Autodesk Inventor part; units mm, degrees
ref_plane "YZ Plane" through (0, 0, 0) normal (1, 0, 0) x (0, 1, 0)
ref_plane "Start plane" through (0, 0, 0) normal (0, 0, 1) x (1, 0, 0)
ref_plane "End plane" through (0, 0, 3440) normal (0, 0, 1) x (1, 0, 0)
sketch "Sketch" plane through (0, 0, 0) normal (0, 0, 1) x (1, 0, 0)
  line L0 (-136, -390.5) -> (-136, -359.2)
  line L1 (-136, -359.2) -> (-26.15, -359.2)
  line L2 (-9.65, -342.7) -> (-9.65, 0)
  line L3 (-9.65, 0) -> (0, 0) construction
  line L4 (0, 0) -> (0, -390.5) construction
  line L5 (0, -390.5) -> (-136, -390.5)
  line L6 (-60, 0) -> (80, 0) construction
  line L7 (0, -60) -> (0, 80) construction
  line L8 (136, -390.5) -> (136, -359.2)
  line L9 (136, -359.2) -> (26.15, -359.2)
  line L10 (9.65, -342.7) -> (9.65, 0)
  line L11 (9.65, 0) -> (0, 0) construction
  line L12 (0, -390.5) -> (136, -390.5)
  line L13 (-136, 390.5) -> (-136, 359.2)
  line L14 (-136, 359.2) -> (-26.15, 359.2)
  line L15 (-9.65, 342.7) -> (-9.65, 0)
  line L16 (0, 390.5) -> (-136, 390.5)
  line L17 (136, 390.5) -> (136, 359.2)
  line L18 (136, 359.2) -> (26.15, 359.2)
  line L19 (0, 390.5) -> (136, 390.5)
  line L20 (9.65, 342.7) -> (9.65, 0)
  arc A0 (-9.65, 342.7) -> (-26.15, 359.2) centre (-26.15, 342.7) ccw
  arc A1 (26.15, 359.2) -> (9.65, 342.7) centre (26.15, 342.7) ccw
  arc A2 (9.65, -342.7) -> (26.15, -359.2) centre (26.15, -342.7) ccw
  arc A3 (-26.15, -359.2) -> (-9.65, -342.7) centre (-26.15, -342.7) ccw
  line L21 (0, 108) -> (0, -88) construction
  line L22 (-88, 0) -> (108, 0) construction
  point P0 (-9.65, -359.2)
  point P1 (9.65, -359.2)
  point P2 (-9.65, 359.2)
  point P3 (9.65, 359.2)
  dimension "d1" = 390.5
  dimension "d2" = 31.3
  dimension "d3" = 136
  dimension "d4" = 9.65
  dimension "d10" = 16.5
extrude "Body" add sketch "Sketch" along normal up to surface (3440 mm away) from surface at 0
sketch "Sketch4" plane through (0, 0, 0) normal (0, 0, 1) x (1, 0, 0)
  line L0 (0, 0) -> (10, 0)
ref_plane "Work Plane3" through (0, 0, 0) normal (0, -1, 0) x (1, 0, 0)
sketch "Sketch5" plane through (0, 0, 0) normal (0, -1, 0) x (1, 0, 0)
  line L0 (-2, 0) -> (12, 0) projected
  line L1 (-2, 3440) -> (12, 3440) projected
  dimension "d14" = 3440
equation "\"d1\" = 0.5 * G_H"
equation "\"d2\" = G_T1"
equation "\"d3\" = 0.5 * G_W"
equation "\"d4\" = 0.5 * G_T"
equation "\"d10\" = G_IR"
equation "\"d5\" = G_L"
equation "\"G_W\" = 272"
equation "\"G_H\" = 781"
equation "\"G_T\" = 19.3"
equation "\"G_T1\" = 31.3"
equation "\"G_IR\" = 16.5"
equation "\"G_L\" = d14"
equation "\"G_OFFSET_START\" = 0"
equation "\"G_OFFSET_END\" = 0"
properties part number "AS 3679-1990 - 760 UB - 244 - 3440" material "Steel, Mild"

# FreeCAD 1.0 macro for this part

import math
import FreeCAD as App
import Part
import Sketcher
from FreeCAD import Vector

doc = App.newDocument("Part")
body = doc.addObject("PartDesign::Body", "Body")

# Sketch on XY plane
sketch1 = body.newObject("Sketcher::SketchObject", "Sketch")
sketch1.AttachmentSupport = (doc.getObject("XY_Plane"), [""])
sketch1.MapMode = "FlatFace"
sketch1.addGeometry([
    Part.LineSegment(Vector(-136, -359, 0), Vector(-136, -390, 0)),  # 0
    Part.LineSegment(Vector(-136, -390, 0), Vector(136, -390, 0)),  # 1
    Part.LineSegment(Vector(136, -390, 0), Vector(136, -359, 0)),  # 2
    Part.LineSegment(Vector(136, -359, 0), Vector(26, -359, 0)),  # 3
    Part.ArcOfCircle(Part.Circle(Vector(26, -343, 0), Vector(0, 0, 1), 16), math.radians(180), math.radians(270)),  # 4
    Part.LineSegment(Vector(10, -343, 0), Vector(10, 343, 0)),  # 5
    Part.ArcOfCircle(Part.Circle(Vector(26, 343, 0), Vector(0, 0, 1), 16), math.radians(90), math.radians(180)),  # 6
    Part.LineSegment(Vector(26, 359, 0), Vector(136, 359, 0)),  # 7
    Part.LineSegment(Vector(136, 359, 0), Vector(136, 390, 0)),  # 8
    Part.LineSegment(Vector(136, 390, 0), Vector(-136, 390, 0)),  # 9
    Part.LineSegment(Vector(-136, 390, 0), Vector(-136, 359, 0)),  # 10
    Part.LineSegment(Vector(-136, 359, 0), Vector(-26, 359, 0)),  # 11
    Part.ArcOfCircle(Part.Circle(Vector(-26, 343, 0), Vector(0, 0, 1), 16), math.radians(0), math.radians(90)),  # 12
    Part.LineSegment(Vector(-10, 343, 0), Vector(-10, -343, 0)),  # 13
    Part.ArcOfCircle(Part.Circle(Vector(-26, -343, 0), Vector(0, 0, 1), 16), math.radians(-90), math.radians(0)),  # 14
    Part.LineSegment(Vector(-26, -359, 0), Vector(-136, -359, 0)),  # 15
], False)
sketch1.addConstraint([
    Sketcher.Constraint("Coincident", 0, 2, 1, 1),
    Sketcher.Constraint("Coincident", 1, 2, 2, 1),
    Sketcher.Constraint("Coincident", 2, 2, 3, 1),
    Sketcher.Constraint("Tangent", 3, 2, 4, 2),
    Sketcher.Constraint("Tangent", 4, 1, 5, 1),
    Sketcher.Constraint("Tangent", 5, 2, 6, 2),
    Sketcher.Constraint("Tangent", 6, 1, 7, 1),
    Sketcher.Constraint("Coincident", 7, 2, 8, 1),
    Sketcher.Constraint("Coincident", 8, 2, 9, 1),
    Sketcher.Constraint("Coincident", 9, 2, 10, 1),
    Sketcher.Constraint("Coincident", 10, 2, 11, 1),
    Sketcher.Constraint("Tangent", 11, 2, 12, 2),
    Sketcher.Constraint("Tangent", 12, 1, 13, 1),
    Sketcher.Constraint("Tangent", 13, 2, 14, 2),
    Sketcher.Constraint("Tangent", 14, 1, 15, 1),
    Sketcher.Constraint("Coincident", 15, 2, 0, 1),
    Sketcher.Constraint("Vertical", 0),
    Sketcher.Constraint("Horizontal", 1),
    Sketcher.Constraint("Vertical", 2),
    Sketcher.Constraint("Horizontal", 3),
    Sketcher.Constraint("Vertical", 5),
    Sketcher.Constraint("Horizontal", 7),
    Sketcher.Constraint("Vertical", 8),
    Sketcher.Constraint("Horizontal", 9),
    Sketcher.Constraint("Vertical", 10),
    Sketcher.Constraint("Horizontal", 11),
    Sketcher.Constraint("Vertical", 13),
    Sketcher.Constraint("Horizontal", 15),
    Sketcher.Constraint("Equal", 4, 6),
    Sketcher.Constraint("Equal", 6, 12),
    Sketcher.Constraint("Equal", 12, 14),
    Sketcher.Constraint("Symmetric", 4, 3, 12, 3, -1, 1),
    Sketcher.Constraint("Symmetric", 0, 2, 8, 2, -1, 1),
    Sketcher.Constraint("Symmetric", 7, 2, 10, 2, -2),
    Sketcher.Constraint("Symmetric", 2, 2, 15, 2, -2),
    Sketcher.Constraint("Radius", 4, 16.5),
    Sketcher.Constraint("DistanceY", 0, 2, 0, 1, 31.3),
    Sketcher.Constraint("DistanceX", 0, 2, -1, 1, 136.0),
    Sketcher.Constraint("DistanceY", 0, 2, -1, 1, 390.5),
    Sketcher.Constraint("DistanceX", -1, 1, 4, 1, 9.65),
])
pad1 = body.newObject("PartDesign::Pad", "Pad")
pad1.Profile = sketch1
pad1.Length = 3440

doc.recompute()
